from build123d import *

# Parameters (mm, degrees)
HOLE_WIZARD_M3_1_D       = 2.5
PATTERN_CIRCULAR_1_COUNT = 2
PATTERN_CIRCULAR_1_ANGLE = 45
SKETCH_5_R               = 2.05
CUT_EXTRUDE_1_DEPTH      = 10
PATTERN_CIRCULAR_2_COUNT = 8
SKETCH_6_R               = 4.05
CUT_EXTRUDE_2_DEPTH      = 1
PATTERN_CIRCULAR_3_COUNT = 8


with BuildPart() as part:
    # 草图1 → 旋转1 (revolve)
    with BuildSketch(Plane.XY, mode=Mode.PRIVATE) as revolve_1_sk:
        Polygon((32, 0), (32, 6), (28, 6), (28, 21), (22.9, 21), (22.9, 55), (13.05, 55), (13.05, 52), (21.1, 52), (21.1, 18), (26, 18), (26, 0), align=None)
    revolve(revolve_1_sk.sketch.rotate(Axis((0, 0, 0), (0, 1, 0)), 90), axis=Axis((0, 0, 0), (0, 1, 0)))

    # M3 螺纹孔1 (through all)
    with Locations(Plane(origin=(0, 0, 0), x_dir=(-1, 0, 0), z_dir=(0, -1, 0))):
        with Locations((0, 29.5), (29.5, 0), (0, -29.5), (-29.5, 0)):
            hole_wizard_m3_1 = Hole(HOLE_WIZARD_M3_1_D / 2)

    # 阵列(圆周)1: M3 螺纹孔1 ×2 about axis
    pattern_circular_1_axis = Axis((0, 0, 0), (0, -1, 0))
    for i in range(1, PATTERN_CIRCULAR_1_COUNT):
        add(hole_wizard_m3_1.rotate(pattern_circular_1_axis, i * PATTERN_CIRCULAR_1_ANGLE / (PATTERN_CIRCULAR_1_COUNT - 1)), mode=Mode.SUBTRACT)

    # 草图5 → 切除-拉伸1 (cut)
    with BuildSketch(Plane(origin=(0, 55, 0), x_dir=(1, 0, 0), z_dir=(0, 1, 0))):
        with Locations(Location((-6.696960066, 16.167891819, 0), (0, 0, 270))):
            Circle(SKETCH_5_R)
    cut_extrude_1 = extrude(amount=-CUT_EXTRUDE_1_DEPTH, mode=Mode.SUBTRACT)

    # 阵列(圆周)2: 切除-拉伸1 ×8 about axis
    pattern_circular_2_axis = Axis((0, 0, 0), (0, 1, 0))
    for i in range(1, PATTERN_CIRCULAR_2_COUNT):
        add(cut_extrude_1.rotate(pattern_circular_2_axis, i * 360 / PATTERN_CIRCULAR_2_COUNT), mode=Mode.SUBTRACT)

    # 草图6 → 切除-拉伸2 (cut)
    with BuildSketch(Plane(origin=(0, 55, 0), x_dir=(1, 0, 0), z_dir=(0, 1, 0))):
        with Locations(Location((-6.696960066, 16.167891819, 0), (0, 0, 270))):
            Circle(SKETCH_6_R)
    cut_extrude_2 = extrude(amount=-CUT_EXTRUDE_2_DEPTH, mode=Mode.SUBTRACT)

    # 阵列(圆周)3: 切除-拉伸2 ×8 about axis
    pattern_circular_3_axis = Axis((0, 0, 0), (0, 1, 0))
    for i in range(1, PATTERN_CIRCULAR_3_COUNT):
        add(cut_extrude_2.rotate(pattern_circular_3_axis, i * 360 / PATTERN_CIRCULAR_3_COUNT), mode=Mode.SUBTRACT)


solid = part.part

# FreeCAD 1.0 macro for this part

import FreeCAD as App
import Part
import Sketcher
Q = App.Units.Quantity

doc = App.newDocument("Part")
body = doc.addObject("PartDesign::Body", "Body")

sketch1 = doc.addObject("Sketcher::SketchObject", "Sketch")
body.addObject(sketch1)
sketch1.AttachmentSupport = (doc.XY_Plane, [""])
sketch1.MapMode = "FlatFace"
sketch1.addGeometry([
    Part.LineSegment(App.Vector(32, 0, 0), App.Vector(32, 6, 0)),
    Part.LineSegment(App.Vector(32, 6, 0), App.Vector(28, 6, 0)),
    Part.LineSegment(App.Vector(28, 6, 0), App.Vector(28, 21, 0)),
    Part.LineSegment(App.Vector(28, 21, 0), App.Vector(22.9, 21, 0)),
    Part.LineSegment(App.Vector(22.9, 21, 0), App.Vector(22.9, 55, 0)),
    Part.LineSegment(App.Vector(22.9, 55, 0), App.Vector(13.1, 55, 0)),
    Part.LineSegment(App.Vector(13.1, 55, 0), App.Vector(13.1, 52, 0)),
    Part.LineSegment(App.Vector(13.1, 52, 0), App.Vector(21.1, 52, 0)),
    Part.LineSegment(App.Vector(21.1, 52, 0), App.Vector(21.1, 18, 0)),
    Part.LineSegment(App.Vector(21.1, 18, 0), App.Vector(26, 18, 0)),
    Part.LineSegment(App.Vector(26, 18, 0), App.Vector(26, 0, 0)),
    Part.LineSegment(App.Vector(26, 0, 0), App.Vector(32, 0, 0)),
], False)
sketch1.addConstraint([
    Sketcher.Constraint("Coincident", 0, 2, 1, 1),
    Sketcher.Constraint("Coincident", 1, 2, 2, 1),
    Sketcher.Constraint("Coincident", 2, 2, 3, 1),
    Sketcher.Constraint("Coincident", 3, 2, 4, 1),
    Sketcher.Constraint("Coincident", 4, 2, 5, 1),
    Sketcher.Constraint("Coincident", 5, 2, 6, 1),
    Sketcher.Constraint("Coincident", 6, 2, 7, 1),
    Sketcher.Constraint("Coincident", 7, 2, 8, 1),
    Sketcher.Constraint("Coincident", 8, 2, 9, 1),
    Sketcher.Constraint("Coincident", 9, 2, 10, 1),
    Sketcher.Constraint("Coincident", 10, 2, 11, 1),
    Sketcher.Constraint("Coincident", 11, 2, 0, 1),
    Sketcher.Constraint("Vertical", 0),
    Sketcher.Constraint("Horizontal", 1),
    Sketcher.Constraint("Vertical", 2),
    Sketcher.Constraint("Horizontal", 3),
    Sketcher.Constraint("Vertical", 4),
    Sketcher.Constraint("Horizontal", 5),
    Sketcher.Constraint("Vertical", 6),
    Sketcher.Constraint("Horizontal", 7),
    Sketcher.Constraint("Vertical", 8),
    Sketcher.Constraint("Horizontal", 9),
    Sketcher.Constraint("Vertical", 10),
    Sketcher.Constraint("Horizontal", 11),
    Sketcher.Constraint("PointOnObject", 10, 2, -1),
    Sketcher.Constraint("Equal", 11, 0),
    Sketcher.Constraint("Equal", 4, 8),
    Sketcher.Constraint("DistanceX", 1, 2, 1, 1, Q("4 mm")),
    Sketcher.Constraint("DistanceX", 11, 1, 11, 2, Q("6 mm")),
    Sketcher.Constraint("DistanceY", 2, 1, 2, 2, Q("15 mm")),
    Sketcher.Constraint("DistanceY", 4, 1, 4, 2, Q("34 mm")),
    Sketcher.Constraint("DistanceY", 6, 2, 6, 1, Q("3 mm")),
    Sketcher.Constraint("DistanceX", 3, 2, 3, 1, Q("5.1 mm")),
    Sketcher.Constraint("DistanceX", 9, 1, 9, 2, Q("4.9 mm")),
    Sketcher.Constraint("DistanceX", -1, 1, 0, 2, Q("32 mm")),
    Sketcher.Constraint("DistanceX", 5, 2, 5, 1, Q("9.85 mm")),
])
revolution = doc.addObject("PartDesign::Revolution", "Revolution")
body.addObject(revolution)
revolution.Profile = sketch1
revolution.ReferenceAxis = (sketch1, ["V_Axis"])
revolution.Angle = 360

sketch2 = doc.addObject("Sketcher::SketchObject", "Sketch001")
body.addObject(sketch2)
sketch2.AttachmentSupport = (doc.XZ_Plane, [""])
sketch2.MapMode = "FlatFace"
sketch2.addGeometry([
    Part.Circle(App.Vector(0, -29.5, 0), App.Vector(0, 0, 1), 1.2),
    Part.Circle(App.Vector(-29.5, 0, 0), App.Vector(0, 0, 1), 1.2),
    Part.Circle(App.Vector(0, 29.5, 0), App.Vector(0, 0, 1), 1.2),
    Part.Circle(App.Vector(29.5, 0, 0), App.Vector(0, 0, 1), 1.2),
], False)
sketch2.addConstraint([
    Sketcher.Constraint("Equal", 0, 1),
    Sketcher.Constraint("Equal", 1, 2),
    Sketcher.Constraint("Equal", 2, 3),
    Sketcher.Constraint("Symmetric", 0, 3, 2, 3, -1, 1),
    Sketcher.Constraint("Symmetric", 1, 3, 3, 3, -1, 1),
    Sketcher.Constraint("PointOnObject", 0, 3, -2),
    Sketcher.Constraint("PointOnObject", 1, 3, -1),
    Sketcher.Constraint("Diameter", 0, Q("2.5 mm")),
    Sketcher.Constraint("DistanceY", 0, 3, 2, 3, Q("59 mm")),
    Sketcher.Constraint("DistanceX", 1, 3, 3, 3, Q("59 mm")),
])
doc.recompute()
hole = doc.addObject("PartDesign::Hole", "Hole")
body.addObject(hole)
hole.Profile = sketch2
hole.ThreadType = "None"
hole.Diameter = 2.5
hole.DepthType = "ThroughAll"
doc.recompute()

polarpattern = doc.addObject("PartDesign::PolarPattern", "PolarPattern")
body.addObject(polarpattern)
polarpattern.Originals = [hole]
polarpattern.Axis = (doc.Y_Axis, [""])
polarpattern.Angle = 45
polarpattern.Occurrences = 2
polarpattern.Reversed = True
body.Tip = polarpattern

sketch3 = doc.addObject("Sketcher::SketchObject", "Sketch002")
body.addObject(sketch3)
sketch3.AttachmentSupport = (doc.XZ_Plane, [""])
sketch3.MapMode = "FlatFace"
sketch3.AttachmentOffset = App.Placement(App.Vector(0, 0, -55), App.Rotation())
sketch3.addGeometry(Part.Circle(App.Vector(-6.7, -16.2, 0), App.Vector(0, 0, 1), 2), False)
sketch3.addConstraint([
    Sketcher.Constraint("Diameter", 0, Q("4.1 mm")),
    Sketcher.Constraint("DistanceX", 0, 3, -1, 1, Q("6.69696 mm")),
    Sketcher.Constraint("DistanceY", 0, 3, -1, 1, Q("16.167892 mm")),
])
pocket1 = doc.addObject("PartDesign::Pocket", "Pocket")
body.addObject(pocket1)
pocket1.Profile = sketch3
pocket1.Length = 10
pocket1.Reversed = True
doc.recompute()

polarpattern2 = doc.addObject("PartDesign::PolarPattern", "PolarPattern001")
body.addObject(polarpattern2)
polarpattern2.Originals = [pocket1]
polarpattern2.Axis = (doc.Y_Axis, [""])
polarpattern2.Angle = 360
polarpattern2.Occurrences = 8
body.Tip = polarpattern2

sketch4 = doc.addObject("Sketcher::SketchObject", "Sketch003")
body.addObject(sketch4)
sketch4.AttachmentSupport = (doc.XZ_Plane, [""])
sketch4.MapMode = "FlatFace"
sketch4.AttachmentOffset = App.Placement(App.Vector(0, 0, -55), App.Rotation())
sketch4.addGeometry(Part.Circle(App.Vector(-6.7, -16.2, 0), App.Vector(0, 0, 1), 4), False)
sketch4.addConstraint([
    Sketcher.Constraint("Diameter", 0, Q("8.1 mm")),
    Sketcher.Constraint("DistanceX", 0, 3, -1, 1, Q("6.69696 mm")),
    Sketcher.Constraint("DistanceY", 0, 3, -1, 1, Q("16.167892 mm")),
])
pocket2 = doc.addObject("PartDesign::Pocket", "Pocket001")
body.addObject(pocket2)
pocket2.Profile = sketch4
pocket2.Length = 1
pocket2.Reversed = True
doc.recompute()

polarpattern3 = doc.addObject("PartDesign::PolarPattern", "PolarPattern002")
body.addObject(polarpattern3)
polarpattern3.Originals = [pocket2]
polarpattern3.Axis = (doc.Y_Axis, [""])
polarpattern3.Angle = 360
polarpattern3.Occurrences = 8
body.Tip = polarpattern3

doc.recompute()
